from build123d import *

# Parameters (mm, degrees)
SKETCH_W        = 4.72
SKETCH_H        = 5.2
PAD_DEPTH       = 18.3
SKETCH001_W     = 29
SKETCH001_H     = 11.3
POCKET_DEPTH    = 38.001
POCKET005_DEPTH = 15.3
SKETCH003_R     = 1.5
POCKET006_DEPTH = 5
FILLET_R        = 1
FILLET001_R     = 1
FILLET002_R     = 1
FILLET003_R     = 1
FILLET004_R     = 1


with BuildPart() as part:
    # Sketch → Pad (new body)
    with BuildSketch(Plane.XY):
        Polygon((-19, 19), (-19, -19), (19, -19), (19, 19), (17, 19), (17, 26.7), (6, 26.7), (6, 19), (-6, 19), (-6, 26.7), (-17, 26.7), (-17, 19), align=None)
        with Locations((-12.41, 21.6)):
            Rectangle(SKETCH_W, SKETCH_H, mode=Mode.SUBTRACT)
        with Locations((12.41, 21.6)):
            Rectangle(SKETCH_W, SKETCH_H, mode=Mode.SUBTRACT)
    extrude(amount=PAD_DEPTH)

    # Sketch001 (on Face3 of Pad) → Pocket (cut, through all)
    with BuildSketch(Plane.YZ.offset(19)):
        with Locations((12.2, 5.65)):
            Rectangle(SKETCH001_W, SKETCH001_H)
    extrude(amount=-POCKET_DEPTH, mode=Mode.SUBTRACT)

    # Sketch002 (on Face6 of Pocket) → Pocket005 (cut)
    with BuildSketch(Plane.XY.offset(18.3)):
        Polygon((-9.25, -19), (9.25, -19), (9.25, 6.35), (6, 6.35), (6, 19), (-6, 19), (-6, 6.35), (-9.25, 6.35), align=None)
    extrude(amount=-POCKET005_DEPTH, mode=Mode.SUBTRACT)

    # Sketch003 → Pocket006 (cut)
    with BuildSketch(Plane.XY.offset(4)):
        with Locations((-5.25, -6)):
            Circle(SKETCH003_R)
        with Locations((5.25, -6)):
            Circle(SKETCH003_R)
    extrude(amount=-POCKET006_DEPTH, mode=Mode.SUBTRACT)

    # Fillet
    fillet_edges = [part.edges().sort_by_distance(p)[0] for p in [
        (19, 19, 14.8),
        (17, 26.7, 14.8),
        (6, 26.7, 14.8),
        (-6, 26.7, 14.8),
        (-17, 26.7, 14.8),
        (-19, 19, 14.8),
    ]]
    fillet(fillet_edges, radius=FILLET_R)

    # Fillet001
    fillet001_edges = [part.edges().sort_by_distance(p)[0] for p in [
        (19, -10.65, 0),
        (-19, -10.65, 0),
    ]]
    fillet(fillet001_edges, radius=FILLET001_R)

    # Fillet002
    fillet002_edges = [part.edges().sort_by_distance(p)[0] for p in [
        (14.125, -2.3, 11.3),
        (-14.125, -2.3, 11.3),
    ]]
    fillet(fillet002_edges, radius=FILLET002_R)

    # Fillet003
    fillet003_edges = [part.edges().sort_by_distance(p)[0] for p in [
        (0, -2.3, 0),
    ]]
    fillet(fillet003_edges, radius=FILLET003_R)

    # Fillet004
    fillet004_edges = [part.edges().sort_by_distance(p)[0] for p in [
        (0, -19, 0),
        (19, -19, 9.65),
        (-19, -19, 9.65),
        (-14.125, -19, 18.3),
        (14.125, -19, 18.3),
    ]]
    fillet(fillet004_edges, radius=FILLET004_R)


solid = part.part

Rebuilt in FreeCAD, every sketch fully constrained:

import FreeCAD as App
import Part
import Sketcher


def edges_at(feature, points):
    """Names of the edges that pass closest to the given points."""
    edges = feature.Shape.Edges
    near = lambda p: min(range(len(edges)), key=lambda i: edges[i].distToShape(Part.Vertex(*p))[0])
    return sorted({f"Edge{near(p) + 1}" for p in points})

doc = App.newDocument("Part")
body = doc.addObject("PartDesign::Body", "Body")

# Sketch on XY plane
sketch1 = body.newObject("Sketcher::SketchObject", "Sketch")
sketch1.AttachmentSupport = (doc.getObject("XY_Plane"), [""])
sketch1.MapMode = "FlatFace"
sketch1.addGeometry(Part.LineSegment(App.Vector(-19, 19, 0), App.Vector(-19, -19, 0)), False)
sketch1.addGeometry(Part.LineSegment(App.Vector(-19, -19, 0), App.Vector(19, -19, 0)), False)
sketch1.addGeometry(Part.LineSegment(App.Vector(19, -19, 0), App.Vector(19, 19, 0)), False)
sketch1.addGeometry(Part.LineSegment(App.Vector(19, 19, 0), App.Vector(17, 19, 0)), False)
sketch1.addGeometry(Part.LineSegment(App.Vector(17, 19, 0), App.Vector(17, 26.7, 0)), False)
sketch1.addGeometry(Part.LineSegment(App.Vector(17, 26.7, 0), App.Vector(6, 26.7, 0)), False)
sketch1.addGeometry(Part.LineSegment(App.Vector(6, 26.7, 0), App.Vector(6, 19, 0)), False)
sketch1.addGeometry(Part.LineSegment(App.Vector(6, 19, 0), App.Vector(-6, 19, 0)), False)
sketch1.addGeometry(Part.LineSegment(App.Vector(-6, 19, 0), App.Vector(-6, 26.7, 0)), False)
sketch1.addGeometry(Part.LineSegment(App.Vector(-6, 26.7, 0), App.Vector(-17, 26.7, 0)), False)
sketch1.addGeometry(Part.LineSegment(App.Vector(-17, 26.7, 0), App.Vector(-17, 19, 0)), False)
sketch1.addGeometry(Part.LineSegment(App.Vector(-17, 19, 0), App.Vector(-19, 19, 0)), False)
sketch1.addGeometry(Part.LineSegment(App.Vector(-10.1, 19, 0), App.Vector(-14.8, 19, 0)), False)
sketch1.addGeometry(Part.LineSegment(App.Vector(-14.8, 19, 0), App.Vector(-14.8, 24.2, 0)), False)
sketch1.addGeometry(Part.LineSegment(App.Vector(-14.8, 24.2, 0), App.Vector(-10.1, 24.2, 0)), False)
sketch1.addGeometry(Part.LineSegment(App.Vector(-10.1, 24.2, 0), App.Vector(-10.1, 19, 0)), False)
sketch1.addGeometry(Part.LineSegment(App.Vector(14.8, 19, 0), App.Vector(10.1, 19, 0)), False)
sketch1.addGeometry(Part.LineSegment(App.Vector(10.1, 19, 0), App.Vector(10.1, 24.2, 0)), False)
sketch1.addGeometry(Part.LineSegment(App.Vector(10.1, 24.2, 0), App.Vector(14.8, 24.2, 0)), False)
sketch1.addGeometry(Part.LineSegment(App.Vector(14.8, 24.2, 0), App.Vector(14.8, 19, 0)), False)
sketch1.addConstraint(Sketcher.Constraint("Coincident", 0, 2, 1, 1))
sketch1.addConstraint(Sketcher.Constraint("Coincident", 1, 2, 2, 1))
sketch1.addConstraint(Sketcher.Constraint("Coincident", 2, 2, 3, 1))
sketch1.addConstraint(Sketcher.Constraint("Coincident", 3, 2, 4, 1))
sketch1.addConstraint(Sketcher.Constraint("Coincident", 4, 2, 5, 1))
sketch1.addConstraint(Sketcher.Constraint("Coincident", 5, 2, 6, 1))
sketch1.addConstraint(Sketcher.Constraint("Coincident", 6, 2, 7, 1))
sketch1.addConstraint(Sketcher.Constraint("Coincident", 7, 2, 8, 1))
sketch1.addConstraint(Sketcher.Constraint("Coincident", 8, 2, 9, 1))
sketch1.addConstraint(Sketcher.Constraint("Coincident", 9, 2, 10, 1))
sketch1.addConstraint(Sketcher.Constraint("Coincident", 10, 2, 11, 1))
sketch1.addConstraint(Sketcher.Constraint("Coincident", 11, 2, 0, 1))
sketch1.addConstraint(Sketcher.Constraint("Coincident", 12, 2, 13, 1))
sketch1.addConstraint(Sketcher.Constraint("Coincident", 13, 2, 14, 1))
sketch1.addConstraint(Sketcher.Constraint("Coincident", 14, 2, 15, 1))
sketch1.addConstraint(Sketcher.Constraint("Coincident", 15, 2, 12, 1))
sketch1.addConstraint(Sketcher.Constraint("Coincident", 16, 2, 17, 1))
sketch1.addConstraint(Sketcher.Constraint("Coincident", 17, 2, 18, 1))
sketch1.addConstraint(Sketcher.Constraint("Coincident", 18, 2, 19, 1))
sketch1.addConstraint(Sketcher.Constraint("Coincident", 19, 2, 16, 1))
sketch1.addConstraint(Sketcher.Constraint("Vertical", 0))
sketch1.addConstraint(Sketcher.Constraint("Horizontal", 1))
sketch1.addConstraint(Sketcher.Constraint("Vertical", 2))
sketch1.addConstraint(Sketcher.Constraint("Horizontal", 3))
sketch1.addConstraint(Sketcher.Constraint("Vertical", 4))
sketch1.addConstraint(Sketcher.Constraint("Horizontal", 5))
sketch1.addConstraint(Sketcher.Constraint("Vertical", 6))
sketch1.addConstraint(Sketcher.Constraint("Horizontal", 7))
sketch1.addConstraint(Sketcher.Constraint("Vertical", 8))
sketch1.addConstraint(Sketcher.Constraint("Horizontal", 9))
sketch1.addConstraint(Sketcher.Constraint("Vertical", 10))
sketch1.addConstraint(Sketcher.Constraint("Horizontal", 11))
sketch1.addConstraint(Sketcher.Constraint("Horizontal", 12))
sketch1.addConstraint(Sketcher.Constraint("Vertical", 13))
sketch1.addConstraint(Sketcher.Constraint("Horizontal", 14))
sketch1.addConstraint(Sketcher.Constraint("Vertical", 15))
sketch1.addConstraint(Sketcher.Constraint("Horizontal", 16))
sketch1.addConstraint(Sketcher.Constraint("Vertical", 17))
sketch1.addConstraint(Sketcher.Constraint("Horizontal", 18))
sketch1.addConstraint(Sketcher.Constraint("Vertical", 19))
sketch1.addConstraint(Sketcher.Constraint("Symmetric", 0, 2, 2, 2, -1, 1))
sketch1.addConstraint(Sketcher.Constraint("Symmetric", 5, 2, 8, 2, -2))
sketch1.addConstraint(Sketcher.Constraint("Symmetric", 3, 2, 10, 2, -2))
sketch1.addConstraint(Sketcher.Constraint("Symmetric", 15, 2, 16, 2, -2))
sketch1.addConstraint(Sketcher.Constraint("Symmetric", 13, 2, 18, 2, -2))
sketch1.addConstraint(Sketcher.Constraint("Horizontal", 3, 2, 6, 2))
sketch1.addConstraint(Sketcher.Constraint("Horizontal", 11, 2, 12, 2))
sketch1.addConstraint(Sketcher.Constraint("Equal", 1, 0))
sketch1.addConstraint(Sketcher.Constraint("DistanceX", 1, 1, 1, 2, 38.0))
sketch1.addConstraint(Sketcher.Constraint("DistanceX", 3, 2, 3, 1, 2.0))
sketch1.addConstraint(Sketcher.Constraint("DistanceX", 5, 2, 5, 1, 11.0))
sketch1.addConstraint(Sketcher.Constraint("DistanceY", 4, 1, 4, 2, 7.7))
sketch1.addConstraint(Sketcher.Constraint("DistanceY", 13, 1, 13, 2, 5.2))
sketch1.addConstraint(Sketcher.Constraint("DistanceX", 12, 2, 12, 1, 4.72))
sketch1.addConstraint(Sketcher.Constraint("DistanceX", 12, 2, -1, 1, 14.77))
pad1 = body.newObject("PartDesign::Pad", "Pad")
pad1.Profile = sketch1
pad1.Length = 18.3

# Sketch on YZ plane
sketch2 = body.newObject("Sketcher::SketchObject", "Sketch001")
sketch2.AttachmentSupport = (doc.getObject("YZ_Plane"), [""])
sketch2.MapMode = "FlatFace"
sketch2.AttachmentOffset = App.Placement(App.Vector(0, 0, 19), App.Rotation())
sketch2.addGeometry(Part.LineSegment(App.Vector(-2, 11, 0), App.Vector(-2, 0, 0)), False)
sketch2.addGeometry(Part.LineSegment(App.Vector(-2, 0, 0), App.Vector(27, 0, 0)), False)
sketch2.addGeometry(Part.LineSegment(App.Vector(27, 0, 0), App.Vector(27, 11, 0)), False)
sketch2.addGeometry(Part.LineSegment(App.Vector(27, 11, 0), App.Vector(-2, 11, 0)), False)
sketch2.addConstraint(Sketcher.Constraint("Coincident", 0, 2, 1, 1))
sketch2.addConstraint(Sketcher.Constraint("Coincident", 1, 2, 2, 1))
sketch2.addConstraint(Sketcher.Constraint("Coincident", 2, 2, 3, 1))
sketch2.addConstraint(Sketcher.Constraint("Coincident", 3, 2, 0, 1))
sketch2.addConstraint(Sketcher.Constraint("Vertical", 0))
sketch2.addConstraint(Sketcher.Constraint("Horizontal", 1))
sketch2.addConstraint(Sketcher.Constraint("Vertical", 2))
sketch2.addConstraint(Sketcher.Constraint("Horizontal", 3))
sketch2.addConstraint(Sketcher.Constraint("PointOnObject", 0, 2, -1))
sketch2.addConstraint(Sketcher.Constraint("DistanceX", 1, 1, 1, 2, 29.0))
sketch2.addConstraint(Sketcher.Constraint("DistanceY", 0, 2, 0, 1, 11.3))
sketch2.addConstraint(Sketcher.Constraint("DistanceX", 0, 2, -1, 1, 2.3))
pocket1 = body.newObject("PartDesign::Pocket", "Pocket")
pocket1.Profile = sketch2
pocket1.Type = "ThroughAll"

# Sketch on XY plane
sketch3 = body.newObject("Sketcher::SketchObject", "Sketch002")
sketch3.AttachmentSupport = (doc.getObject("XY_Plane"), [""])
sketch3.MapMode = "FlatFace"
sketch3.AttachmentOffset = App.Placement(App.Vector(0, 0, 18.3), App.Rotation())
sketch3.addGeometry(Part.LineSegment(App.Vector(-9.2, -19, 0), App.Vector(9.2, -19, 0)), False)
sketch3.addGeometry(Part.LineSegment(App.Vector(9.2, -19, 0), App.Vector(9.2, 6.3, 0)), False)
sketch3.addGeometry(Part.LineSegment(App.Vector(9.2, 6.3, 0), App.Vector(6, 6.3, 0)), False)
sketch3.addGeometry(Part.LineSegment(App.Vector(6, 6.3, 0), App.Vector(6, 19, 0)), False)
sketch3.addGeometry(Part.LineSegment(App.Vector(6, 19, 0), App.Vector(-6, 19, 0)), False)
sketch3.addGeometry(Part.LineSegment(App.Vector(-6, 19, 0), App.Vector(-6, 6.3, 0)), False)
sketch3.addGeometry(Part.LineSegment(App.Vector(-6, 6.3, 0), App.Vector(-9.2, 6.3, 0)), False)
sketch3.addGeometry(Part.LineSegment(App.Vector(-9.2, 6.3, 0), App.Vector(-9.2, -19, 0)), False)
sketch3.addConstraint(Sketcher.Constraint("Coincident", 0, 2, 1, 1))
sketch3.addConstraint(Sketcher.Constraint("Coincident", 1, 2, 2, 1))
sketch3.addConstraint(Sketcher.Constraint("Coincident", 2, 2, 3, 1))
sketch3.addConstraint(Sketcher.Constraint("Coincident", 3, 2, 4, 1))
sketch3.addConstraint(Sketcher.Constraint("Coincident", 4, 2, 5, 1))
sketch3.addConstraint(Sketcher.Constraint("Coincident", 5, 2, 6, 1))
sketch3.addConstraint(Sketcher.Constraint("Coincident", 6, 2, 7, 1))
sketch3.addConstraint(Sketcher.Constraint("Coincident", 7, 2, 0, 1))
sketch3.addConstraint(Sketcher.Constraint("Horizontal", 0))
sketch3.addConstraint(Sketcher.Constraint("Vertical", 1))
sketch3.addConstraint(Sketcher.Constraint("Horizontal", 2))
sketch3.addConstraint(Sketcher.Constraint("Vertical", 3))
sketch3.addConstraint(Sketcher.Constraint("Horizontal", 4))
sketch3.addConstraint(Sketcher.Constraint("Vertical", 5))
sketch3.addConstraint(Sketcher.Constraint("Horizontal", 6))
sketch3.addConstraint(Sketcher.Constraint("Vertical", 7))
sketch3.addConstraint(Sketcher.Constraint("Symmetric", 2, 2, 5, 2, -2))
sketch3.addConstraint(Sketcher.Constraint("Equal", 2, 6))
sketch3.addConstraint(Sketcher.Constraint("DistanceX", 4, 2, 4, 1, 12.0))
sketch3.addConstraint(Sketcher.Constraint("DistanceX", 0, 1, 0, 2, 18.5))
sketch3.addConstraint(Sketcher.Constraint("DistanceY", 0, 2, -1, 1, 19.0))
sketch3.addConstraint(Sketcher.Constraint("DistanceY", -1, 1, 3, 2, 19.0))
sketch3.addConstraint(Sketcher.Constraint("DistanceY", 1, 1, 1, 2, 25.35))
pocket2 = body.newObject("PartDesign::Pocket", "Pocket001")
pocket2.Profile = sketch3
pocket2.Length = 15.3

# Sketch on XY plane
sketch4 = body.newObject("Sketcher::SketchObject", "Sketch003")
sketch4.AttachmentSupport = (doc.getObject("XY_Plane"), [""])
sketch4.MapMode = "FlatFace"
sketch4.AttachmentOffset = App.Placement(App.Vector(0, 0, 4), App.Rotation())
sketch4.addGeometry(Part.Circle(App.Vector(-5.2, -6, 0), App.Vector(0, 0, 1), 1.5), False)
sketch4.addGeometry(Part.Circle(App.Vector(5.2, -6, 0), App.Vector(0, 0, 1), 1.5), False)
sketch4.addConstraint(Sketcher.Constraint("Equal", 0, 1))
sketch4.addConstraint(Sketcher.Constraint("Symmetric", 0, 3, 1, 3, -2))
sketch4.addConstraint(Sketcher.Constraint("Diameter", 0, 3.0))
sketch4.addConstraint(Sketcher.Constraint("DistanceY", 0, 3, -1, 1, 6.0))
sketch4.addConstraint(Sketcher.Constraint("DistanceX", 0, 3, 1, 3, 10.5))
pocket3 = body.newObject("PartDesign::Pocket", "Pocket002")
pocket3.Profile = sketch4
pocket3.Length = 5
doc.recompute()

fillet = body.newObject("PartDesign::Fillet", "Fillet")
fillet.Base = (pocket3, edges_at(pocket3, [
    (19, 19, 14.8),
    (17, 26.7, 14.8),
    (6, 26.7, 14.8),
    (-6, 26.7, 14.8),
    (-17, 26.7, 14.8),
    (-19, 19, 14.8),
]))
fillet.Radius = 1
doc.recompute()

fillet2 = body.newObject("PartDesign::Fillet", "Fillet001")
fillet2.Base = (fillet, edges_at(fillet, [(19, -10.65, 0), (-19, -10.65, 0)]))
fillet2.Radius = 1
doc.recompute()

fillet3 = body.newObject("PartDesign::Fillet", "Fillet002")
fillet3.Base = (fillet2, edges_at(fillet2, [(14.125, -2.3, 11.3), (-14.125, -2.3, 11.3)]))
fillet3.Radius = 1
doc.recompute()

fillet4 = body.newObject("PartDesign::Fillet", "Fillet003")
fillet4.Base = (fillet3, edges_at(fillet3, [(0, -2.3, 0)]))
fillet4.Radius = 1
doc.recompute()

fillet5 = body.newObject("PartDesign::Fillet", "Fillet004")
fillet5.Base = (fillet4, edges_at(fillet4, [
    (0, -19, 0),
    (19, -19, 9.65),
    (-19, -19, 9.65),
    (-14.125, -19, 18.3),
    (14.125, -19, 18.3),
]))
fillet5.Radius = 1

doc.recompute()
